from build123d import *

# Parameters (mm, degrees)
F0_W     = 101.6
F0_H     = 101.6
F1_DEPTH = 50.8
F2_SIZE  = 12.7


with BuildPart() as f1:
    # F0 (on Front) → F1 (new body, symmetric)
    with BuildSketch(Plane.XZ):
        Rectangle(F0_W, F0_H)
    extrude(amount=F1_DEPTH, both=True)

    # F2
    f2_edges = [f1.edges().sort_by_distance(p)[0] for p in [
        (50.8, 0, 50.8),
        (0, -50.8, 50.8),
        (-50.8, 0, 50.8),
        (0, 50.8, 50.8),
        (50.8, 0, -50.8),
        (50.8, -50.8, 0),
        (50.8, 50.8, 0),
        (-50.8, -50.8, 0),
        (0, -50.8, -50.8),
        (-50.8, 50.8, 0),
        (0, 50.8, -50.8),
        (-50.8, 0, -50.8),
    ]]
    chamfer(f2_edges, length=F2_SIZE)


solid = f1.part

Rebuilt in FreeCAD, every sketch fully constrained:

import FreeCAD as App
import Part
import Sketcher
from FreeCAD import Vector
Q = App.Units.Quantity

doc = App.newDocument("Part")
body = doc.addObject("PartDesign::Body", "Body")

sketch1 = body.newObject("Sketcher::SketchObject", "Sketch")
sketch1.AttachmentSupport = (doc.getObject("XZ_Plane"), [""])
sketch1.MapMode = "FlatFace"
sketch1.addGeometry([
    Part.LineSegment(Vector(-50.8, 50.8, 0), Vector(-50.8, -50.8, 0)),
    Part.LineSegment(Vector(-50.8, -50.8, 0), Vector(50.8, -50.8, 0)),
    Part.LineSegment(Vector(50.8, -50.8, 0), Vector(50.8, 50.8, 0)),
    Part.LineSegment(Vector(50.8, 50.8, 0), Vector(-50.8, 50.8, 0)),
], False)
sketch1.addConstraint([
    Sketcher.Constraint("Coincident", 0, 2, 1, 1),
    Sketcher.Constraint("Coincident", 1, 2, 2, 1),
    Sketcher.Constraint("Coincident", 2, 2, 3, 1),
    Sketcher.Constraint("Coincident", 3, 2, 0, 1),
    Sketcher.Constraint("Vertical", 0),
    Sketcher.Constraint("Horizontal", 1),
    Sketcher.Constraint("Vertical", 2),
    Sketcher.Constraint("Horizontal", 3),
    Sketcher.Constraint("Symmetric", 0, 2, 2, 2, -1, 1),
    Sketcher.Constraint("Equal", 3, 0),
    Sketcher.Constraint("DistanceX", 1, 1, 1, 2, Q("4 in")),
])
pad1 = body.newObject("PartDesign::Pad", "Pad")
pad1.Profile = sketch1
pad1.Length = Q("4 in")
pad1.Midplane = True
doc.recompute()

chamfer = body.newObject("PartDesign::Chamfer", "Chamfer")
chamfer.Base = (pad1, ["Edge1"])
chamfer.UseAllEdges = True
chamfer.Size = Q("0.5 in")

doc.recompute()
